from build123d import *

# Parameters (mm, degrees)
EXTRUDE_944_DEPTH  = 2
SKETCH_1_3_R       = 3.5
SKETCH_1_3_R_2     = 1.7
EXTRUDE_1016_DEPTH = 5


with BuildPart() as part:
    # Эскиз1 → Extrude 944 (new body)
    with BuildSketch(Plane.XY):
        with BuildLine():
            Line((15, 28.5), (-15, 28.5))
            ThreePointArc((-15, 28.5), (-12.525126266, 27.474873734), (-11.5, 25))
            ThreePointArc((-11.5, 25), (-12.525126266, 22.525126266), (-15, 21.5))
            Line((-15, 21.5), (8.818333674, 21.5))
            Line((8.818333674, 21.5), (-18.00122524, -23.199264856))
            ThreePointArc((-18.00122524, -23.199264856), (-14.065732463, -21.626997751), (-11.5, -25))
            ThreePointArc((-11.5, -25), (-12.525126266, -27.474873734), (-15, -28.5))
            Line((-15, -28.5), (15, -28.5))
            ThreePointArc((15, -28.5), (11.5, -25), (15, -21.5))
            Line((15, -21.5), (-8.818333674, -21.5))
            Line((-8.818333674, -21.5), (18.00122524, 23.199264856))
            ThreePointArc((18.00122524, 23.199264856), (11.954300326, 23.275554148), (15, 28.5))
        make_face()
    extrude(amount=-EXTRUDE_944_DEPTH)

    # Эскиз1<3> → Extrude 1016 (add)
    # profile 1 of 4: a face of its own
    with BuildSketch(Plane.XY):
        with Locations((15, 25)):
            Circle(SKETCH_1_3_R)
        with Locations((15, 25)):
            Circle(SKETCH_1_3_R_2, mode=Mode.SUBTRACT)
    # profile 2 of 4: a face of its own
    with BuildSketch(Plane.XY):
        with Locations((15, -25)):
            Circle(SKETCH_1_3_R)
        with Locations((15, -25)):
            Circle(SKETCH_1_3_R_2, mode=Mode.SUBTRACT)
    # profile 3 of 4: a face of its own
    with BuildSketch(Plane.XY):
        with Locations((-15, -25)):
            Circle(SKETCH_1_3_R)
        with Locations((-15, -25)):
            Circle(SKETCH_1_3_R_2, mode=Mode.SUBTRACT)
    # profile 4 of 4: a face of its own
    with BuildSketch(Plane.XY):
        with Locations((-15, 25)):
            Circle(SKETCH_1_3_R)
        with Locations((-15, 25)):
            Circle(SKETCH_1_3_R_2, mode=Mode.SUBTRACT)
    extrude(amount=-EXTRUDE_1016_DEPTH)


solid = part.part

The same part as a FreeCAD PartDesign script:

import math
import FreeCAD as App
import Part
import Sketcher

doc = App.newDocument("Part")
body = doc.addObject("PartDesign::Body", "Body")

sketch1 = body.newObject("Sketcher::SketchObject", "Sketch")
sketch1.AttachmentSupport = (doc.getObject("XY_Plane"), [""])
sketch1.MapMode = "FlatFace"
sketch1.addGeometry([
    Part.LineSegment(App.Vector(15, 28.5, 0), App.Vector(-15, 28.5, 0)),
    Part.ArcOfCircle(Part.Circle(App.Vector(-15, 25, 0), App.Vector(0, 0, 1), 3.5), math.radians(0), math.radians(90)),
    Part.ArcOfCircle(Part.Circle(App.Vector(-15, 25, 0), App.Vector(0, 0, 1), 3.5), math.radians(-90), math.radians(0)),
    Part.LineSegment(App.Vector(-15, 21.5, 0), App.Vector(8.8, 21.5, 0)),
    Part.LineSegment(App.Vector(8.8, 21.5, 0), App.Vector(-18, -23.2, 0)),
    Part.ArcOfCircle(Part.Circle(App.Vector(-15, -25, 0), App.Vector(0, 0, 1), 3.5), math.radians(0), math.radians(149)),
    Part.ArcOfCircle(Part.Circle(App.Vector(-15, -25, 0), App.Vector(0, 0, 1), 3.5), math.radians(-90), math.radians(0)),
    Part.LineSegment(App.Vector(-15, -28.5, 0), App.Vector(15, -28.5, 0)),
    Part.ArcOfCircle(Part.Circle(App.Vector(15, -25, 0), App.Vector(0, 0, 1), 3.5), math.radians(90), math.radians(270)),
    Part.LineSegment(App.Vector(15, -21.5, 0), App.Vector(-8.8, -21.5, 0)),
    Part.LineSegment(App.Vector(-8.8, -21.5, 0), App.Vector(18, 23.2, 0)),
    Part.ArcOfCircle(Part.Circle(App.Vector(15, 25, 0), App.Vector(0, 0, 1), 3.5), math.radians(90), math.radians(329)),
], False)
sketch1.addConstraint([
    Sketcher.Constraint("Tangent", 0, 2, 1, 2),
    Sketcher.Constraint("Tangent", 1, 1, 2, 2),
    Sketcher.Constraint("Tangent", 2, 1, 3, 1),
    Sketcher.Constraint("Coincident", 3, 2, 4, 1),
    Sketcher.Constraint("Tangent", 4, 2, 5, 2),
    Sketcher.Constraint("Tangent", 5, 1, 6, 2),
    Sketcher.Constraint("Tangent", 6, 1, 7, 1),
    Sketcher.Constraint("Tangent", 7, 2, 8, 2),
    Sketcher.Constraint("Tangent", 8, 1, 9, 1),
    Sketcher.Constraint("Coincident", 9, 2, 10, 1),
    Sketcher.Constraint("Tangent", 10, 2, 11, 2),
    Sketcher.Constraint("Tangent", 11, 1, 0, 1),
    Sketcher.Constraint("Horizontal", 0),
    Sketcher.Constraint("Horizontal", 3),
    Sketcher.Constraint("Horizontal", 7),
    Sketcher.Constraint("Horizontal", 9),
    Sketcher.Constraint("Equal", 1, 2),
    Sketcher.Constraint("Equal", 2, 5),
    Sketcher.Constraint("Equal", 5, 6),
    Sketcher.Constraint("Equal", 6, 8),
    Sketcher.Constraint("Equal", 8, 11),
    Sketcher.Constraint("Symmetric", 1, 3, 8, 3, -1, 1),
    Sketcher.Constraint("Symmetric", 4, 2, 10, 2, -1, 1),
    Sketcher.Constraint("Symmetric", 1, 1, 5, 1, -1),
    Sketcher.Constraint("Horizontal", 11, 3, 1, 1),
    Sketcher.Constraint("Radius", 1, 3.5),
    Sketcher.Constraint("DistanceX", 0, 2, 0, 1, 30.0),
    Sketcher.Constraint("DistanceY", -1, 1, 1, 3, 25.0),
    Sketcher.Constraint("DistanceX", 3, 1, 3, 2, 23.818334),
])
pad1 = body.newObject("PartDesign::Pad", "Pad")
pad1.Profile = sketch1
pad1.Length = 2
pad1.Reversed = True

sketch2 = body.newObject("Sketcher::SketchObject", "Sketch001")
sketch2.AttachmentSupport = (doc.getObject("XY_Plane"), [""])
sketch2.MapMode = "FlatFace"
sketch2.addGeometry([
    Part.Circle(App.Vector(15, 25, 0), App.Vector(0, 0, 1), 3.5),
    Part.Circle(App.Vector(15, 25, 0), App.Vector(0, 0, 1), 1.7),
    Part.Circle(App.Vector(15, -25, 0), App.Vector(0, 0, 1), 3.5),
    Part.Circle(App.Vector(15, -25, 0), App.Vector(0, 0, 1), 1.7),
    Part.Circle(App.Vector(-15, -25, 0), App.Vector(0, 0, 1), 3.5),
    Part.Circle(App.Vector(-15, -25, 0), App.Vector(0, 0, 1), 1.7),
    Part.Circle(App.Vector(-15, 25, 0), App.Vector(0, 0, 1), 3.5),
    Part.Circle(App.Vector(-15, 25, 0), App.Vector(0, 0, 1), 1.7),
], False)
sketch2.addConstraint([
    Sketcher.Constraint("Coincident", 1, 3, 0, 3),
    Sketcher.Constraint("Coincident", 3, 3, 2, 3),
    Sketcher.Constraint("Coincident", 5, 3, 4, 3),
    Sketcher.Constraint("Coincident", 7, 3, 6, 3),
    Sketcher.Constraint("Equal", 0, 2),
    Sketcher.Constraint("Equal", 1, 3),
    Sketcher.Constraint("Equal", 2, 4),
    Sketcher.Constraint("Equal", 3, 5),
    Sketcher.Constraint("Equal", 4, 6),
    Sketcher.Constraint("Equal", 5, 7),
    Sketcher.Constraint("Symmetric", 0, 3, 4, 3, -1, 1),
    Sketcher.Constraint("Symmetric", 2, 3, 6, 3, -1, 1),
    Sketcher.Constraint("Symmetric", 2, 3, 4, 3, -2),
    Sketcher.Constraint("Diameter", 0, 7.0),
    Sketcher.Constraint("Diameter", 1, 3.4),
    Sketcher.Constraint("DistanceX", -1, 1, 0, 3, 15.0),
    Sketcher.Constraint("DistanceY", -1, 1, 0, 3, 25.0),
])
pad2 = body.newObject("PartDesign::Pad", "Pad001")
pad2.Profile = sketch2
pad2.Length = 5
pad2.Reversed = True

doc.recompute()
